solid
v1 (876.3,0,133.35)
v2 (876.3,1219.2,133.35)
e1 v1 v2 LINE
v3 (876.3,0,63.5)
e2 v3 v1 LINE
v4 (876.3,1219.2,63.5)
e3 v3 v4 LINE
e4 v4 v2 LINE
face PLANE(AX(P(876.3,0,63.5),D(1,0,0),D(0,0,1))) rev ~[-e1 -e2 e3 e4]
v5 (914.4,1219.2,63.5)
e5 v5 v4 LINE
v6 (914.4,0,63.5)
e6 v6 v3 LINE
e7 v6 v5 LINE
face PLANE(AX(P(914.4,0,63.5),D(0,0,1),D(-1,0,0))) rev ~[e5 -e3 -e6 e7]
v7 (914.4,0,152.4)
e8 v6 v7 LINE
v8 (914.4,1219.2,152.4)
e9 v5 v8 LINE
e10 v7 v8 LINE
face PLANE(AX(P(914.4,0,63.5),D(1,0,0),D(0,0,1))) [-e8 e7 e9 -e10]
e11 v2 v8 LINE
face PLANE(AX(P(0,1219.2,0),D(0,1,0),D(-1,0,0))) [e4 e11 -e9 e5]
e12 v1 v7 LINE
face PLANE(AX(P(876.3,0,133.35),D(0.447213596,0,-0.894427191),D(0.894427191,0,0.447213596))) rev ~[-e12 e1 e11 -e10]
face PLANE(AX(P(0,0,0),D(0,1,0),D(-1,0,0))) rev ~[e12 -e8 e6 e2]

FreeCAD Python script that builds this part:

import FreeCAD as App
import Part
import Sketcher
Q = App.Units.Quantity

doc = App.newDocument("Part")
body = doc.addObject("PartDesign::Body", "Body")

# Sketch on XZ plane
sketch1 = doc.addObject("Sketcher::SketchObject", "Sketch")
body.addObject(sketch1)
sketch1.AttachmentSupport = (doc.XZ_Plane, [""])
sketch1.MapMode = "FlatFace"
sketch1.addGeometry(Part.LineSegment(App.Vector(876.3, 63.5, 0), App.Vector(876.3, 133.35, 0)), False)
sketch1.addGeometry(Part.LineSegment(App.Vector(876.3, 133.35, 0), App.Vector(914.4, 152.4, 0)), False)
sketch1.addGeometry(Part.LineSegment(App.Vector(914.4, 152.4, 0), App.Vector(914.4, 63.5, 0)), False)
sketch1.addGeometry(Part.LineSegment(App.Vector(914.4, 63.5, 0), App.Vector(876.3, 63.5, 0)), False)
sketch1.addConstraint(Sketcher.Constraint("Coincident", 0, 2, 1, 1))
sketch1.addConstraint(Sketcher.Constraint("Coincident", 1, 2, 2, 1))
sketch1.addConstraint(Sketcher.Constraint("Coincident", 2, 2, 3, 1))
sketch1.addConstraint(Sketcher.Constraint("Coincident", 3, 2, 0, 1))
sketch1.addConstraint(Sketcher.Constraint("Vertical", 0))
sketch1.addConstraint(Sketcher.Constraint("Vertical", 2))
sketch1.addConstraint(Sketcher.Constraint("Horizontal", 3))
sketch1.addConstraint(Sketcher.Constraint("DistanceX", 3, 2, 3, 1, Q("1.5 in")))
sketch1.addConstraint(Sketcher.Constraint("DistanceY", 2, 2, 2, 1, Q("3.5 in")))
sketch1.addConstraint(Sketcher.Constraint("DistanceY", -1, 1, 1, 2, Q("6 in")))
sketch1.addConstraint(Sketcher.Constraint("DistanceX", -1, 1, 1, 2, Q("36 in")))
sketch1.addConstraint(Sketcher.Constraint("DistanceY", 0, 1, 0, 2, Q("2.75 in")))
pad1 = doc.addObject("PartDesign::Pad", "Pad")
body.addObject(pad1)
pad1.Profile = sketch1
pad1.Length = Q("48 in")
pad1.Reversed = True

doc.recompute()
